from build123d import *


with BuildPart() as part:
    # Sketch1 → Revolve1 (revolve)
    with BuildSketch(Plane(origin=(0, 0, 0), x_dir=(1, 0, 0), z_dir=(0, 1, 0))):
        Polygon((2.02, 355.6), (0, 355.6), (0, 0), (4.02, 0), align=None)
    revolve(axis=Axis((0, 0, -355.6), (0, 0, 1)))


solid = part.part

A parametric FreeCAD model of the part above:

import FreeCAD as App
import Part
import Sketcher
from FreeCAD import Vector
Q = App.Units.Quantity


def add_polygon(sketch, points):
    """Adds a closed chain of lines whose ends are joined by coincident constraints."""
    first, n = sketch.GeometryCount, len(points)
    for a, b in zip(points, points[1:] + points[:1]):
        sketch.addGeometry(Part.LineSegment(App.Vector(*a, 0), App.Vector(*b, 0)), False)
    for i in range(n):
        sketch.addConstraint(Sketcher.Constraint("Coincident", first + i, 2, first + (i + 1) % n, 1))

doc = App.newDocument("Part")
body = doc.addObject("PartDesign::Body", "Body")

sketch1 = body.newObject("Sketcher::SketchObject", "Sketch")
sketch1.AttachmentSupport = (doc.getObject("XZ_Plane"), [""])
sketch1.MapMode = "FlatFace"
add_polygon(sketch1, [(2.02, -355.6), (0, -355.6), (0, 0), (4.02, 0)])
sketch1.addConstraint(Sketcher.Constraint("Horizontal", 0))
sketch1.addConstraint(Sketcher.Constraint("Vertical", 1))
sketch1.addConstraint(Sketcher.Constraint("Horizontal", 2))
sketch1.addConstraint(Sketcher.Constraint("Coincident", 1, 2, -1, 1))
sketch1.addConstraint(Sketcher.Constraint("DistanceY", 1, 1, 1, 2, Q("14 in")))
sketch1.addConstraint(Sketcher.Constraint("DistanceX", 0, 2, 0, 1, 2.02))
sketch1.addConstraint(Sketcher.Constraint("DistanceX", 2, 1, 2, 2, 4.02))
revolution = body.newObject("PartDesign::Revolution", "Revolution")
revolution.Profile = sketch1
revolution.ReferenceAxis = (sketch1, ["V_Axis"])
revolution.Angle = 360

doc.recompute()
